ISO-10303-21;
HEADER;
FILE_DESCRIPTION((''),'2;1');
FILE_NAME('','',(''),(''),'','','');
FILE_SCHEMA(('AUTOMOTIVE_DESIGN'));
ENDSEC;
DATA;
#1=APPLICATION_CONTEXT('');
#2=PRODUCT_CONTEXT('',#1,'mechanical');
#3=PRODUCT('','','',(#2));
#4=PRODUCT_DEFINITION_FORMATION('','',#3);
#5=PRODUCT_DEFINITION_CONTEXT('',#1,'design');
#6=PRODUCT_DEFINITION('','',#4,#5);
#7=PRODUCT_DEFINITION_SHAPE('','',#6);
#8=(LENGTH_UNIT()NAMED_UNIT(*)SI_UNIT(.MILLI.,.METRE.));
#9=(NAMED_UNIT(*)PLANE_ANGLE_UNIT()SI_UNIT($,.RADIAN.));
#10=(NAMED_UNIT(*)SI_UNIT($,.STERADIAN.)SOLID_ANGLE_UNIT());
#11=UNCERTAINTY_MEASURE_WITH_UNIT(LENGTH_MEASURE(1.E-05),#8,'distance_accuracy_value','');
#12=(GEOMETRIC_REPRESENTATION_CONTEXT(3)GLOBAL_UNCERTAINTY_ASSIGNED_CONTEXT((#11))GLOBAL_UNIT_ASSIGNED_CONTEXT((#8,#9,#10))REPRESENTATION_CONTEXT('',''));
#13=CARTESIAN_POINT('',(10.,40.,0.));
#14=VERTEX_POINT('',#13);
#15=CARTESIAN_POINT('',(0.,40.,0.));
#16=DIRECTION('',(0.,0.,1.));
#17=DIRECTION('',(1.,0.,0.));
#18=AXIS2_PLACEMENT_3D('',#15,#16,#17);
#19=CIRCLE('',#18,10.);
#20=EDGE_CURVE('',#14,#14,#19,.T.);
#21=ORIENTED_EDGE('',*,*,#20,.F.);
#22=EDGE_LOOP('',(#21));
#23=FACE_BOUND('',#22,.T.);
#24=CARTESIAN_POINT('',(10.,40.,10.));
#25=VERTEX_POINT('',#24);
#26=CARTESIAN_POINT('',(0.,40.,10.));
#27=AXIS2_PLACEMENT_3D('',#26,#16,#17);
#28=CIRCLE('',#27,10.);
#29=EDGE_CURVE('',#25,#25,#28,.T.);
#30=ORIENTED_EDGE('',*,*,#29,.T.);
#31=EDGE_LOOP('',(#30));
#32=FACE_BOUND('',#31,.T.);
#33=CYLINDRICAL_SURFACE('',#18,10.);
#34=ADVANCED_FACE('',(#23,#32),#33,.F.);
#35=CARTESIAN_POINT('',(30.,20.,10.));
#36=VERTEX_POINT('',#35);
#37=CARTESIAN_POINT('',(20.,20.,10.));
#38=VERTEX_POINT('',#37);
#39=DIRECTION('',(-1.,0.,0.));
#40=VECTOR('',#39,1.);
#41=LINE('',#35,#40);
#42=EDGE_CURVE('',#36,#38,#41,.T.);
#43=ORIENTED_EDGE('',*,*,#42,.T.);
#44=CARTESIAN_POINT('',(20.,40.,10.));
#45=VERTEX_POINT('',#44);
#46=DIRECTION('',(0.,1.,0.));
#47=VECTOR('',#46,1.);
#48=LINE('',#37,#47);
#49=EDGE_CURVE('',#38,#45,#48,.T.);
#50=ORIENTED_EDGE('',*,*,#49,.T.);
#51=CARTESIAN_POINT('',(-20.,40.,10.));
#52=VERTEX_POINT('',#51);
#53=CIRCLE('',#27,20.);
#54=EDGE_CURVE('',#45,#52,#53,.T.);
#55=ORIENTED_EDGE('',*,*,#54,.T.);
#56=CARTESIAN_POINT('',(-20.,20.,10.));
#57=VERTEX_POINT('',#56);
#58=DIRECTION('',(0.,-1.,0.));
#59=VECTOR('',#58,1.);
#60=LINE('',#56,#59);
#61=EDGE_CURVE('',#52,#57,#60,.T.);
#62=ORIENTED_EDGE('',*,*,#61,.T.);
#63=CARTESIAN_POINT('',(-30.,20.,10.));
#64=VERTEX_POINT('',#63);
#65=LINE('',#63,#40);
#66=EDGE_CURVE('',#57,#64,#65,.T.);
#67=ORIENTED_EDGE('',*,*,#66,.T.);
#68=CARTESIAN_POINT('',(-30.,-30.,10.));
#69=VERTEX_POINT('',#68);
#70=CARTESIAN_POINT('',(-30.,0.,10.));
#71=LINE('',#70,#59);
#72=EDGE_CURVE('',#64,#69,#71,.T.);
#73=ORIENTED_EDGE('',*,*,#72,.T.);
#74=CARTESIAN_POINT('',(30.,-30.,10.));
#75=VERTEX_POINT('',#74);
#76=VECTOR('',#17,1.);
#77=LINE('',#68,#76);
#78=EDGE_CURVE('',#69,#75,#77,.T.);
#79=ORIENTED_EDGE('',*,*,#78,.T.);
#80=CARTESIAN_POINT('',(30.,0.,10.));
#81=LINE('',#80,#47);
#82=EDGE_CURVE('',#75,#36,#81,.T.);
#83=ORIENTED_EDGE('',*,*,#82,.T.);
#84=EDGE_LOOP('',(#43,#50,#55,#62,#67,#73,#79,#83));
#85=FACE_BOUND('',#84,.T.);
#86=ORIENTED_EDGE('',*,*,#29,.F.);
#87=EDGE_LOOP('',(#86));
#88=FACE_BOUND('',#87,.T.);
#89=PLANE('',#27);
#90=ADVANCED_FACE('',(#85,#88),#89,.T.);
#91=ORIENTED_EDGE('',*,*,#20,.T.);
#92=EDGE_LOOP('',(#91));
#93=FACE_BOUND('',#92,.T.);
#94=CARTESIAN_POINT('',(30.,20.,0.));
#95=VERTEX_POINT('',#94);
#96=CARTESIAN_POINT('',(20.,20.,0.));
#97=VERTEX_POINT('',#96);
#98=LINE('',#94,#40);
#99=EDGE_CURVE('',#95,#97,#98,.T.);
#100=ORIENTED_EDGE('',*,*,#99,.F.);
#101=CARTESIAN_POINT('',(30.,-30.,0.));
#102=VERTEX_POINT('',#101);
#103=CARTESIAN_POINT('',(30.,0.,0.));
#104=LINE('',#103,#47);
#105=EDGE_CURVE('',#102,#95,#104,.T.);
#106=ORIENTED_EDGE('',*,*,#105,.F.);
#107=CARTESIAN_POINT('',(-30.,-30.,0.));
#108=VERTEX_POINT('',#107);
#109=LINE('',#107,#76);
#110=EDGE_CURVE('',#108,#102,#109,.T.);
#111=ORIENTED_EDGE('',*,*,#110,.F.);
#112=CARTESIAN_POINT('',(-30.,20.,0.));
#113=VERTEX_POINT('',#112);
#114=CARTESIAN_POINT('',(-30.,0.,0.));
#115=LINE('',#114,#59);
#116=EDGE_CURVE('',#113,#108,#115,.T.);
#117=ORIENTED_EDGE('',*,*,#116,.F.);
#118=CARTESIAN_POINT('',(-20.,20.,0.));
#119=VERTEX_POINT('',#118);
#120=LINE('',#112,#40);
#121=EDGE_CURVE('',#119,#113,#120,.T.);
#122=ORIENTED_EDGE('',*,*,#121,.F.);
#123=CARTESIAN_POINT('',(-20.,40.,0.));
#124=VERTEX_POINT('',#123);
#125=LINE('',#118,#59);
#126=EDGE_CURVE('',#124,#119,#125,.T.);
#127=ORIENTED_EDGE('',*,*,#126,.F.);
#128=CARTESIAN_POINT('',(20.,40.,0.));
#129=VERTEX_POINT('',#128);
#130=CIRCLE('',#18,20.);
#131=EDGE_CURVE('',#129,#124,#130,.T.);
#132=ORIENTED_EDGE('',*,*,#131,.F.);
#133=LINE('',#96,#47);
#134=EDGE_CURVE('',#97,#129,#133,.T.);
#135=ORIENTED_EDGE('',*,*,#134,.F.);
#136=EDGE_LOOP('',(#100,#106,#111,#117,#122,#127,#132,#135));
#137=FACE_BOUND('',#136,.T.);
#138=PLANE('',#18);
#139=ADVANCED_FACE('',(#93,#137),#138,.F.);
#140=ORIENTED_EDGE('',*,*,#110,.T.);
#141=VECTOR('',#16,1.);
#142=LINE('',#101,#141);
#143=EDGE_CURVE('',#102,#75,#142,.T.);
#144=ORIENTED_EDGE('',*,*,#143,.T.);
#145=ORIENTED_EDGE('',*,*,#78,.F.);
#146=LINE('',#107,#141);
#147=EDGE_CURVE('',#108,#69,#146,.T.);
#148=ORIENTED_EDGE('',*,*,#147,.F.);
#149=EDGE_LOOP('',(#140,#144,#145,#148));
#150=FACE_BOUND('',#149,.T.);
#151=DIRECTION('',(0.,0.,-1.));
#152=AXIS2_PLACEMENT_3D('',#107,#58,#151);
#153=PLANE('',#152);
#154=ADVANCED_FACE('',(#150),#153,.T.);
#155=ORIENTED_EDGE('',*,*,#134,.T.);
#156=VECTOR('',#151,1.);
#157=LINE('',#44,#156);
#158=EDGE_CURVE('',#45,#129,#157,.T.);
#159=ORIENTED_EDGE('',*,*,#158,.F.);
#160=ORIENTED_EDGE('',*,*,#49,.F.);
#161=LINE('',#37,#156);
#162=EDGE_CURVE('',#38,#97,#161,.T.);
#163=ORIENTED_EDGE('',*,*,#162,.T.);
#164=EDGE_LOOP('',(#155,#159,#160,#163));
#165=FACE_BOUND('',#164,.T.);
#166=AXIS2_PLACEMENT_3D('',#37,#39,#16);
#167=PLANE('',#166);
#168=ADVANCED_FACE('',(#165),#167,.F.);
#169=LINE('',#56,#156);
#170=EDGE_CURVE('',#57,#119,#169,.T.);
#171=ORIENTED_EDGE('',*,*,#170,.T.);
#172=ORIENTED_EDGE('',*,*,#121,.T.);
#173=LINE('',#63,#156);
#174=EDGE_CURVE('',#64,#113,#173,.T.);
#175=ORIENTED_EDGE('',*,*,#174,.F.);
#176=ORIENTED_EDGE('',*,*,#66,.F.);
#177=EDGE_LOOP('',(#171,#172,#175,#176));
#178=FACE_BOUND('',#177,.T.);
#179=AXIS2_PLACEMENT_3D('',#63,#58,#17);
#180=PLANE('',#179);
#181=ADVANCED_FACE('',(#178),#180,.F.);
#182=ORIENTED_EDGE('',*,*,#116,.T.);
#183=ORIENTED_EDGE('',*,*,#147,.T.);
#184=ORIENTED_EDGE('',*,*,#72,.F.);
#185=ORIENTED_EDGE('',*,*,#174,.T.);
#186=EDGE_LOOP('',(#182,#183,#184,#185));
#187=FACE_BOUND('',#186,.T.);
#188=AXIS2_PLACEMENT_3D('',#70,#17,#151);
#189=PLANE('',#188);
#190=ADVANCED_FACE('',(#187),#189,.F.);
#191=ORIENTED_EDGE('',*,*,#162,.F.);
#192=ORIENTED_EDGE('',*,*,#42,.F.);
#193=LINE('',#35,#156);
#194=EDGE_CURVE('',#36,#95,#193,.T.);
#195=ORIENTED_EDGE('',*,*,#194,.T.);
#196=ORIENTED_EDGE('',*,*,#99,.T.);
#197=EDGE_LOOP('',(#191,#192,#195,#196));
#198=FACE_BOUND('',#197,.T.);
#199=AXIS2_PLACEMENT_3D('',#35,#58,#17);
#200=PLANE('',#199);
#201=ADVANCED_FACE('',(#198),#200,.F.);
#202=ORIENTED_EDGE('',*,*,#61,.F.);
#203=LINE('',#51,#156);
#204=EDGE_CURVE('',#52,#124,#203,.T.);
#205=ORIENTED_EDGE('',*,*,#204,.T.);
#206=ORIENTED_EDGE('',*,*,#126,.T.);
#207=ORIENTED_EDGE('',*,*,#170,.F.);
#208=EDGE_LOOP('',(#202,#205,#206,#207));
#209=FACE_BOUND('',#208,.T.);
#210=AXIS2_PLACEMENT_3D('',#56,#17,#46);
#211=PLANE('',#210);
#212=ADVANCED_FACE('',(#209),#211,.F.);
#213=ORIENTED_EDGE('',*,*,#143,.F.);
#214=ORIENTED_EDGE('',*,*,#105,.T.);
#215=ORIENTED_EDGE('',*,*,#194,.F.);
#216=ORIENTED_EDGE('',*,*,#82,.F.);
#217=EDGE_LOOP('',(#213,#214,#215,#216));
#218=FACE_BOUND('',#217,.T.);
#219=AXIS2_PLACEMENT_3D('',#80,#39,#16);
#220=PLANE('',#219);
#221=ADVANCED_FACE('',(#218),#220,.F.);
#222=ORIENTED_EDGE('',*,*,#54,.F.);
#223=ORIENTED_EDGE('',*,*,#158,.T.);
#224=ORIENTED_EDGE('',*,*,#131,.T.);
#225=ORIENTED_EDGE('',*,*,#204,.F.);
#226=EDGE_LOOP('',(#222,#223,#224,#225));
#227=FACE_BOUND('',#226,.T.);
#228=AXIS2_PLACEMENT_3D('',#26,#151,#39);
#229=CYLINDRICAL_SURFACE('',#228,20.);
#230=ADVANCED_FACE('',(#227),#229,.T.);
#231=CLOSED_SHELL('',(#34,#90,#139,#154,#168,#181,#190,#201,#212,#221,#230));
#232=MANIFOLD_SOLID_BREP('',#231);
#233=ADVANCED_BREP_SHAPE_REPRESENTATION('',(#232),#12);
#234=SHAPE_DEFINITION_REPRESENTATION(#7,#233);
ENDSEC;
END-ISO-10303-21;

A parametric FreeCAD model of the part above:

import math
import FreeCAD as App
import Part
import Sketcher
from FreeCAD import Vector
Q = App.Units.Quantity


def add_polygon(sketch, points):
    """Adds a closed chain of lines whose ends are joined by coincident constraints."""
    first, n = sketch.GeometryCount, len(points)
    for a, b in zip(points, points[1:] + points[:1]):
        sketch.addGeometry(Part.LineSegment(App.Vector(*a, 0), App.Vector(*b, 0)), False)
    for i in range(n):
        sketch.addConstraint(Sketcher.Constraint("Coincident", first + i, 2, first + (i + 1) % n, 1))

doc = App.newDocument("Part")
body = doc.addObject("PartDesign::Body", "Body")

# Sketch on XY plane
sketch1 = body.newObject("Sketcher::SketchObject", "Sketch")
sketch1.AttachmentSupport = (doc.getObject("XY_Plane"), [""])
sketch1.MapMode = "FlatFace"
sketch1.addGeometry(Part.LineSegment(Vector(-30, 0, 0), Vector(30, 0, 0)), False)
sketch1.addGeometry(Part.LineSegment(Vector(30, 0, 0), Vector(30, 20, 0)), False)
sketch1.addGeometry(Part.LineSegment(Vector(30, 20, 0), Vector(20, 20, 0)), False)
sketch1.addGeometry(Part.LineSegment(Vector(20, 20, 0), Vector(20, 40, 0)), False)
sketch1.addGeometry(Part.ArcOfCircle(Part.Circle(Vector(0, 40, 0), Vector(0, 0, 1), 20), math.radians(0), math.radians(180)), False)
sketch1.addGeometry(Part.LineSegment(Vector(-20, 40, 0), Vector(-20, 20, 0)), False)
sketch1.addGeometry(Part.LineSegment(Vector(-20, 20, 0), Vector(-30, 20, 0)), False)
sketch1.addGeometry(Part.LineSegment(Vector(-30, 20, 0), Vector(-30, 0, 0)), False)
sketch1.addConstraint(Sketcher.Constraint("Coincident", 0, 2, 1, 1))
sketch1.addConstraint(Sketcher.Constraint("Coincident", 1, 2, 2, 1))
sketch1.addConstraint(Sketcher.Constraint("Coincident", 2, 2, 3, 1))
sketch1.addConstraint(Sketcher.Constraint("Tangent", 3, 2, 4, 1))
sketch1.addConstraint(Sketcher.Constraint("Tangent", 4, 2, 5, 1))
sketch1.addConstraint(Sketcher.Constraint("Coincident", 5, 2, 6, 1))
sketch1.addConstraint(Sketcher.Constraint("Coincident", 6, 2, 7, 1))
sketch1.addConstraint(Sketcher.Constraint("Coincident", 7, 2, 0, 1))
sketch1.addConstraint(Sketcher.Constraint("Horizontal", 0))
sketch1.addConstraint(Sketcher.Constraint("Vertical", 1))
sketch1.addConstraint(Sketcher.Constraint("Horizontal", 2))
sketch1.addConstraint(Sketcher.Constraint("Vertical", 3))
sketch1.addConstraint(Sketcher.Constraint("Vertical", 5))
sketch1.addConstraint(Sketcher.Constraint("Horizontal", 6))
sketch1.addConstraint(Sketcher.Constraint("Vertical", 7))
sketch1.addConstraint(Sketcher.Constraint("Symmetric", 0, 2, 7, 2, -1, 1))
sketch1.addConstraint(Sketcher.Constraint("Symmetric", 2, 2, 5, 2, -2))
sketch1.addConstraint(Sketcher.Constraint("Equal", 1, 3))
sketch1.addConstraint(Sketcher.Constraint("Radius", 4, Q("20 mm")))
sketch1.addConstraint(Sketcher.Constraint("DistanceX", 0, 1, 0, 2, Q("60 mm")))
sketch1.addConstraint(Sketcher.Constraint("DistanceY", 1, 1, 1, 2, Q("20 mm")))
pad1 = body.newObject("PartDesign::Pad", "Pad")
pad1.Profile = sketch1
pad1.Length = 10

# Sketch on XY plane
sketch2 = body.newObject("Sketcher::SketchObject", "Sketch001")
sketch2.AttachmentSupport = (doc.getObject("XY_Plane"), [""])
sketch2.MapMode = "FlatFace"
sketch2.AttachmentOffset = App.Placement(Vector(0, 0, 10), App.Rotation())
sketch2.addGeometry(Part.Circle(Vector(0, 40, 0), Vector(0, 0, 1), 10), False)
sketch2.addConstraint(Sketcher.Constraint("PointOnObject", 0, 3, -2))
sketch2.addConstraint(Sketcher.Constraint("Diameter", 0, Q("20 mm")))
sketch2.addConstraint(Sketcher.Constraint("DistanceY", -1, 1, 0, 3, Q("40 mm")))
pad2 = body.newObject("PartDesign::Pad", "Pad001")
pad2.Profile = sketch2
pad2.Length = 20

# Sketch on XY plane
sketch3 = body.newObject("Sketcher::SketchObject", "Sketch002")
sketch3.AttachmentSupport = (doc.getObject("XY_Plane"), [""])
sketch3.MapMode = "FlatFace"
sketch3.AttachmentOffset = App.Placement(Vector(0, 0, 10), App.Rotation())
add_polygon(sketch3, [(-30, 0), (-30, -30), (30, -30), (30, 0)])  # lines 0-3
sketch3.addConstraint(Sketcher.Constraint("Vertical", 0))
sketch3.addConstraint(Sketcher.Constraint("Horizontal", 1))
sketch3.addConstraint(Sketcher.Constraint("Vertical", 2))
sketch3.addConstraint(Sketcher.Constraint("Horizontal", 3))
sketch3.addConstraint(Sketcher.Constraint("Symmetric", 2, 2, 3, 2, -1, 1))
sketch3.addConstraint(Sketcher.Constraint("DistanceX", 1, 1, 1, 2, Q("60 mm")))
sketch3.addConstraint(Sketcher.Constraint("DistanceY", 0, 2, 0, 1, Q("30 mm")))
pad3 = body.newObject("PartDesign::Pad", "Pad002")
pad3.Profile = sketch3
pad3.Length = 10
pad3.Reversed = True

# Sketch on XY plane
sketch4 = body.newObject("Sketcher::SketchObject", "Sketch003")
sketch4.AttachmentSupport = (doc.getObject("XY_Plane"), [""])
sketch4.MapMode = "FlatFace"
sketch4.addGeometry(Part.Circle(Vector(0, 40, 0), Vector(0, 0, 1), 10), False)
sketch4.addConstraint(Sketcher.Constraint("PointOnObject", 0, 3, -2))
sketch4.addConstraint(Sketcher.Constraint("Diameter", 0, Q("20 mm")))
sketch4.addConstraint(Sketcher.Constraint("DistanceY", -1, 1, 0, 3, Q("40 mm")))
pocket1 = body.newObject("PartDesign::Pocket", "Pocket")
pocket1.Profile = sketch4
pocket1.Length = 30
pocket1.Reversed = True

doc.recompute()
